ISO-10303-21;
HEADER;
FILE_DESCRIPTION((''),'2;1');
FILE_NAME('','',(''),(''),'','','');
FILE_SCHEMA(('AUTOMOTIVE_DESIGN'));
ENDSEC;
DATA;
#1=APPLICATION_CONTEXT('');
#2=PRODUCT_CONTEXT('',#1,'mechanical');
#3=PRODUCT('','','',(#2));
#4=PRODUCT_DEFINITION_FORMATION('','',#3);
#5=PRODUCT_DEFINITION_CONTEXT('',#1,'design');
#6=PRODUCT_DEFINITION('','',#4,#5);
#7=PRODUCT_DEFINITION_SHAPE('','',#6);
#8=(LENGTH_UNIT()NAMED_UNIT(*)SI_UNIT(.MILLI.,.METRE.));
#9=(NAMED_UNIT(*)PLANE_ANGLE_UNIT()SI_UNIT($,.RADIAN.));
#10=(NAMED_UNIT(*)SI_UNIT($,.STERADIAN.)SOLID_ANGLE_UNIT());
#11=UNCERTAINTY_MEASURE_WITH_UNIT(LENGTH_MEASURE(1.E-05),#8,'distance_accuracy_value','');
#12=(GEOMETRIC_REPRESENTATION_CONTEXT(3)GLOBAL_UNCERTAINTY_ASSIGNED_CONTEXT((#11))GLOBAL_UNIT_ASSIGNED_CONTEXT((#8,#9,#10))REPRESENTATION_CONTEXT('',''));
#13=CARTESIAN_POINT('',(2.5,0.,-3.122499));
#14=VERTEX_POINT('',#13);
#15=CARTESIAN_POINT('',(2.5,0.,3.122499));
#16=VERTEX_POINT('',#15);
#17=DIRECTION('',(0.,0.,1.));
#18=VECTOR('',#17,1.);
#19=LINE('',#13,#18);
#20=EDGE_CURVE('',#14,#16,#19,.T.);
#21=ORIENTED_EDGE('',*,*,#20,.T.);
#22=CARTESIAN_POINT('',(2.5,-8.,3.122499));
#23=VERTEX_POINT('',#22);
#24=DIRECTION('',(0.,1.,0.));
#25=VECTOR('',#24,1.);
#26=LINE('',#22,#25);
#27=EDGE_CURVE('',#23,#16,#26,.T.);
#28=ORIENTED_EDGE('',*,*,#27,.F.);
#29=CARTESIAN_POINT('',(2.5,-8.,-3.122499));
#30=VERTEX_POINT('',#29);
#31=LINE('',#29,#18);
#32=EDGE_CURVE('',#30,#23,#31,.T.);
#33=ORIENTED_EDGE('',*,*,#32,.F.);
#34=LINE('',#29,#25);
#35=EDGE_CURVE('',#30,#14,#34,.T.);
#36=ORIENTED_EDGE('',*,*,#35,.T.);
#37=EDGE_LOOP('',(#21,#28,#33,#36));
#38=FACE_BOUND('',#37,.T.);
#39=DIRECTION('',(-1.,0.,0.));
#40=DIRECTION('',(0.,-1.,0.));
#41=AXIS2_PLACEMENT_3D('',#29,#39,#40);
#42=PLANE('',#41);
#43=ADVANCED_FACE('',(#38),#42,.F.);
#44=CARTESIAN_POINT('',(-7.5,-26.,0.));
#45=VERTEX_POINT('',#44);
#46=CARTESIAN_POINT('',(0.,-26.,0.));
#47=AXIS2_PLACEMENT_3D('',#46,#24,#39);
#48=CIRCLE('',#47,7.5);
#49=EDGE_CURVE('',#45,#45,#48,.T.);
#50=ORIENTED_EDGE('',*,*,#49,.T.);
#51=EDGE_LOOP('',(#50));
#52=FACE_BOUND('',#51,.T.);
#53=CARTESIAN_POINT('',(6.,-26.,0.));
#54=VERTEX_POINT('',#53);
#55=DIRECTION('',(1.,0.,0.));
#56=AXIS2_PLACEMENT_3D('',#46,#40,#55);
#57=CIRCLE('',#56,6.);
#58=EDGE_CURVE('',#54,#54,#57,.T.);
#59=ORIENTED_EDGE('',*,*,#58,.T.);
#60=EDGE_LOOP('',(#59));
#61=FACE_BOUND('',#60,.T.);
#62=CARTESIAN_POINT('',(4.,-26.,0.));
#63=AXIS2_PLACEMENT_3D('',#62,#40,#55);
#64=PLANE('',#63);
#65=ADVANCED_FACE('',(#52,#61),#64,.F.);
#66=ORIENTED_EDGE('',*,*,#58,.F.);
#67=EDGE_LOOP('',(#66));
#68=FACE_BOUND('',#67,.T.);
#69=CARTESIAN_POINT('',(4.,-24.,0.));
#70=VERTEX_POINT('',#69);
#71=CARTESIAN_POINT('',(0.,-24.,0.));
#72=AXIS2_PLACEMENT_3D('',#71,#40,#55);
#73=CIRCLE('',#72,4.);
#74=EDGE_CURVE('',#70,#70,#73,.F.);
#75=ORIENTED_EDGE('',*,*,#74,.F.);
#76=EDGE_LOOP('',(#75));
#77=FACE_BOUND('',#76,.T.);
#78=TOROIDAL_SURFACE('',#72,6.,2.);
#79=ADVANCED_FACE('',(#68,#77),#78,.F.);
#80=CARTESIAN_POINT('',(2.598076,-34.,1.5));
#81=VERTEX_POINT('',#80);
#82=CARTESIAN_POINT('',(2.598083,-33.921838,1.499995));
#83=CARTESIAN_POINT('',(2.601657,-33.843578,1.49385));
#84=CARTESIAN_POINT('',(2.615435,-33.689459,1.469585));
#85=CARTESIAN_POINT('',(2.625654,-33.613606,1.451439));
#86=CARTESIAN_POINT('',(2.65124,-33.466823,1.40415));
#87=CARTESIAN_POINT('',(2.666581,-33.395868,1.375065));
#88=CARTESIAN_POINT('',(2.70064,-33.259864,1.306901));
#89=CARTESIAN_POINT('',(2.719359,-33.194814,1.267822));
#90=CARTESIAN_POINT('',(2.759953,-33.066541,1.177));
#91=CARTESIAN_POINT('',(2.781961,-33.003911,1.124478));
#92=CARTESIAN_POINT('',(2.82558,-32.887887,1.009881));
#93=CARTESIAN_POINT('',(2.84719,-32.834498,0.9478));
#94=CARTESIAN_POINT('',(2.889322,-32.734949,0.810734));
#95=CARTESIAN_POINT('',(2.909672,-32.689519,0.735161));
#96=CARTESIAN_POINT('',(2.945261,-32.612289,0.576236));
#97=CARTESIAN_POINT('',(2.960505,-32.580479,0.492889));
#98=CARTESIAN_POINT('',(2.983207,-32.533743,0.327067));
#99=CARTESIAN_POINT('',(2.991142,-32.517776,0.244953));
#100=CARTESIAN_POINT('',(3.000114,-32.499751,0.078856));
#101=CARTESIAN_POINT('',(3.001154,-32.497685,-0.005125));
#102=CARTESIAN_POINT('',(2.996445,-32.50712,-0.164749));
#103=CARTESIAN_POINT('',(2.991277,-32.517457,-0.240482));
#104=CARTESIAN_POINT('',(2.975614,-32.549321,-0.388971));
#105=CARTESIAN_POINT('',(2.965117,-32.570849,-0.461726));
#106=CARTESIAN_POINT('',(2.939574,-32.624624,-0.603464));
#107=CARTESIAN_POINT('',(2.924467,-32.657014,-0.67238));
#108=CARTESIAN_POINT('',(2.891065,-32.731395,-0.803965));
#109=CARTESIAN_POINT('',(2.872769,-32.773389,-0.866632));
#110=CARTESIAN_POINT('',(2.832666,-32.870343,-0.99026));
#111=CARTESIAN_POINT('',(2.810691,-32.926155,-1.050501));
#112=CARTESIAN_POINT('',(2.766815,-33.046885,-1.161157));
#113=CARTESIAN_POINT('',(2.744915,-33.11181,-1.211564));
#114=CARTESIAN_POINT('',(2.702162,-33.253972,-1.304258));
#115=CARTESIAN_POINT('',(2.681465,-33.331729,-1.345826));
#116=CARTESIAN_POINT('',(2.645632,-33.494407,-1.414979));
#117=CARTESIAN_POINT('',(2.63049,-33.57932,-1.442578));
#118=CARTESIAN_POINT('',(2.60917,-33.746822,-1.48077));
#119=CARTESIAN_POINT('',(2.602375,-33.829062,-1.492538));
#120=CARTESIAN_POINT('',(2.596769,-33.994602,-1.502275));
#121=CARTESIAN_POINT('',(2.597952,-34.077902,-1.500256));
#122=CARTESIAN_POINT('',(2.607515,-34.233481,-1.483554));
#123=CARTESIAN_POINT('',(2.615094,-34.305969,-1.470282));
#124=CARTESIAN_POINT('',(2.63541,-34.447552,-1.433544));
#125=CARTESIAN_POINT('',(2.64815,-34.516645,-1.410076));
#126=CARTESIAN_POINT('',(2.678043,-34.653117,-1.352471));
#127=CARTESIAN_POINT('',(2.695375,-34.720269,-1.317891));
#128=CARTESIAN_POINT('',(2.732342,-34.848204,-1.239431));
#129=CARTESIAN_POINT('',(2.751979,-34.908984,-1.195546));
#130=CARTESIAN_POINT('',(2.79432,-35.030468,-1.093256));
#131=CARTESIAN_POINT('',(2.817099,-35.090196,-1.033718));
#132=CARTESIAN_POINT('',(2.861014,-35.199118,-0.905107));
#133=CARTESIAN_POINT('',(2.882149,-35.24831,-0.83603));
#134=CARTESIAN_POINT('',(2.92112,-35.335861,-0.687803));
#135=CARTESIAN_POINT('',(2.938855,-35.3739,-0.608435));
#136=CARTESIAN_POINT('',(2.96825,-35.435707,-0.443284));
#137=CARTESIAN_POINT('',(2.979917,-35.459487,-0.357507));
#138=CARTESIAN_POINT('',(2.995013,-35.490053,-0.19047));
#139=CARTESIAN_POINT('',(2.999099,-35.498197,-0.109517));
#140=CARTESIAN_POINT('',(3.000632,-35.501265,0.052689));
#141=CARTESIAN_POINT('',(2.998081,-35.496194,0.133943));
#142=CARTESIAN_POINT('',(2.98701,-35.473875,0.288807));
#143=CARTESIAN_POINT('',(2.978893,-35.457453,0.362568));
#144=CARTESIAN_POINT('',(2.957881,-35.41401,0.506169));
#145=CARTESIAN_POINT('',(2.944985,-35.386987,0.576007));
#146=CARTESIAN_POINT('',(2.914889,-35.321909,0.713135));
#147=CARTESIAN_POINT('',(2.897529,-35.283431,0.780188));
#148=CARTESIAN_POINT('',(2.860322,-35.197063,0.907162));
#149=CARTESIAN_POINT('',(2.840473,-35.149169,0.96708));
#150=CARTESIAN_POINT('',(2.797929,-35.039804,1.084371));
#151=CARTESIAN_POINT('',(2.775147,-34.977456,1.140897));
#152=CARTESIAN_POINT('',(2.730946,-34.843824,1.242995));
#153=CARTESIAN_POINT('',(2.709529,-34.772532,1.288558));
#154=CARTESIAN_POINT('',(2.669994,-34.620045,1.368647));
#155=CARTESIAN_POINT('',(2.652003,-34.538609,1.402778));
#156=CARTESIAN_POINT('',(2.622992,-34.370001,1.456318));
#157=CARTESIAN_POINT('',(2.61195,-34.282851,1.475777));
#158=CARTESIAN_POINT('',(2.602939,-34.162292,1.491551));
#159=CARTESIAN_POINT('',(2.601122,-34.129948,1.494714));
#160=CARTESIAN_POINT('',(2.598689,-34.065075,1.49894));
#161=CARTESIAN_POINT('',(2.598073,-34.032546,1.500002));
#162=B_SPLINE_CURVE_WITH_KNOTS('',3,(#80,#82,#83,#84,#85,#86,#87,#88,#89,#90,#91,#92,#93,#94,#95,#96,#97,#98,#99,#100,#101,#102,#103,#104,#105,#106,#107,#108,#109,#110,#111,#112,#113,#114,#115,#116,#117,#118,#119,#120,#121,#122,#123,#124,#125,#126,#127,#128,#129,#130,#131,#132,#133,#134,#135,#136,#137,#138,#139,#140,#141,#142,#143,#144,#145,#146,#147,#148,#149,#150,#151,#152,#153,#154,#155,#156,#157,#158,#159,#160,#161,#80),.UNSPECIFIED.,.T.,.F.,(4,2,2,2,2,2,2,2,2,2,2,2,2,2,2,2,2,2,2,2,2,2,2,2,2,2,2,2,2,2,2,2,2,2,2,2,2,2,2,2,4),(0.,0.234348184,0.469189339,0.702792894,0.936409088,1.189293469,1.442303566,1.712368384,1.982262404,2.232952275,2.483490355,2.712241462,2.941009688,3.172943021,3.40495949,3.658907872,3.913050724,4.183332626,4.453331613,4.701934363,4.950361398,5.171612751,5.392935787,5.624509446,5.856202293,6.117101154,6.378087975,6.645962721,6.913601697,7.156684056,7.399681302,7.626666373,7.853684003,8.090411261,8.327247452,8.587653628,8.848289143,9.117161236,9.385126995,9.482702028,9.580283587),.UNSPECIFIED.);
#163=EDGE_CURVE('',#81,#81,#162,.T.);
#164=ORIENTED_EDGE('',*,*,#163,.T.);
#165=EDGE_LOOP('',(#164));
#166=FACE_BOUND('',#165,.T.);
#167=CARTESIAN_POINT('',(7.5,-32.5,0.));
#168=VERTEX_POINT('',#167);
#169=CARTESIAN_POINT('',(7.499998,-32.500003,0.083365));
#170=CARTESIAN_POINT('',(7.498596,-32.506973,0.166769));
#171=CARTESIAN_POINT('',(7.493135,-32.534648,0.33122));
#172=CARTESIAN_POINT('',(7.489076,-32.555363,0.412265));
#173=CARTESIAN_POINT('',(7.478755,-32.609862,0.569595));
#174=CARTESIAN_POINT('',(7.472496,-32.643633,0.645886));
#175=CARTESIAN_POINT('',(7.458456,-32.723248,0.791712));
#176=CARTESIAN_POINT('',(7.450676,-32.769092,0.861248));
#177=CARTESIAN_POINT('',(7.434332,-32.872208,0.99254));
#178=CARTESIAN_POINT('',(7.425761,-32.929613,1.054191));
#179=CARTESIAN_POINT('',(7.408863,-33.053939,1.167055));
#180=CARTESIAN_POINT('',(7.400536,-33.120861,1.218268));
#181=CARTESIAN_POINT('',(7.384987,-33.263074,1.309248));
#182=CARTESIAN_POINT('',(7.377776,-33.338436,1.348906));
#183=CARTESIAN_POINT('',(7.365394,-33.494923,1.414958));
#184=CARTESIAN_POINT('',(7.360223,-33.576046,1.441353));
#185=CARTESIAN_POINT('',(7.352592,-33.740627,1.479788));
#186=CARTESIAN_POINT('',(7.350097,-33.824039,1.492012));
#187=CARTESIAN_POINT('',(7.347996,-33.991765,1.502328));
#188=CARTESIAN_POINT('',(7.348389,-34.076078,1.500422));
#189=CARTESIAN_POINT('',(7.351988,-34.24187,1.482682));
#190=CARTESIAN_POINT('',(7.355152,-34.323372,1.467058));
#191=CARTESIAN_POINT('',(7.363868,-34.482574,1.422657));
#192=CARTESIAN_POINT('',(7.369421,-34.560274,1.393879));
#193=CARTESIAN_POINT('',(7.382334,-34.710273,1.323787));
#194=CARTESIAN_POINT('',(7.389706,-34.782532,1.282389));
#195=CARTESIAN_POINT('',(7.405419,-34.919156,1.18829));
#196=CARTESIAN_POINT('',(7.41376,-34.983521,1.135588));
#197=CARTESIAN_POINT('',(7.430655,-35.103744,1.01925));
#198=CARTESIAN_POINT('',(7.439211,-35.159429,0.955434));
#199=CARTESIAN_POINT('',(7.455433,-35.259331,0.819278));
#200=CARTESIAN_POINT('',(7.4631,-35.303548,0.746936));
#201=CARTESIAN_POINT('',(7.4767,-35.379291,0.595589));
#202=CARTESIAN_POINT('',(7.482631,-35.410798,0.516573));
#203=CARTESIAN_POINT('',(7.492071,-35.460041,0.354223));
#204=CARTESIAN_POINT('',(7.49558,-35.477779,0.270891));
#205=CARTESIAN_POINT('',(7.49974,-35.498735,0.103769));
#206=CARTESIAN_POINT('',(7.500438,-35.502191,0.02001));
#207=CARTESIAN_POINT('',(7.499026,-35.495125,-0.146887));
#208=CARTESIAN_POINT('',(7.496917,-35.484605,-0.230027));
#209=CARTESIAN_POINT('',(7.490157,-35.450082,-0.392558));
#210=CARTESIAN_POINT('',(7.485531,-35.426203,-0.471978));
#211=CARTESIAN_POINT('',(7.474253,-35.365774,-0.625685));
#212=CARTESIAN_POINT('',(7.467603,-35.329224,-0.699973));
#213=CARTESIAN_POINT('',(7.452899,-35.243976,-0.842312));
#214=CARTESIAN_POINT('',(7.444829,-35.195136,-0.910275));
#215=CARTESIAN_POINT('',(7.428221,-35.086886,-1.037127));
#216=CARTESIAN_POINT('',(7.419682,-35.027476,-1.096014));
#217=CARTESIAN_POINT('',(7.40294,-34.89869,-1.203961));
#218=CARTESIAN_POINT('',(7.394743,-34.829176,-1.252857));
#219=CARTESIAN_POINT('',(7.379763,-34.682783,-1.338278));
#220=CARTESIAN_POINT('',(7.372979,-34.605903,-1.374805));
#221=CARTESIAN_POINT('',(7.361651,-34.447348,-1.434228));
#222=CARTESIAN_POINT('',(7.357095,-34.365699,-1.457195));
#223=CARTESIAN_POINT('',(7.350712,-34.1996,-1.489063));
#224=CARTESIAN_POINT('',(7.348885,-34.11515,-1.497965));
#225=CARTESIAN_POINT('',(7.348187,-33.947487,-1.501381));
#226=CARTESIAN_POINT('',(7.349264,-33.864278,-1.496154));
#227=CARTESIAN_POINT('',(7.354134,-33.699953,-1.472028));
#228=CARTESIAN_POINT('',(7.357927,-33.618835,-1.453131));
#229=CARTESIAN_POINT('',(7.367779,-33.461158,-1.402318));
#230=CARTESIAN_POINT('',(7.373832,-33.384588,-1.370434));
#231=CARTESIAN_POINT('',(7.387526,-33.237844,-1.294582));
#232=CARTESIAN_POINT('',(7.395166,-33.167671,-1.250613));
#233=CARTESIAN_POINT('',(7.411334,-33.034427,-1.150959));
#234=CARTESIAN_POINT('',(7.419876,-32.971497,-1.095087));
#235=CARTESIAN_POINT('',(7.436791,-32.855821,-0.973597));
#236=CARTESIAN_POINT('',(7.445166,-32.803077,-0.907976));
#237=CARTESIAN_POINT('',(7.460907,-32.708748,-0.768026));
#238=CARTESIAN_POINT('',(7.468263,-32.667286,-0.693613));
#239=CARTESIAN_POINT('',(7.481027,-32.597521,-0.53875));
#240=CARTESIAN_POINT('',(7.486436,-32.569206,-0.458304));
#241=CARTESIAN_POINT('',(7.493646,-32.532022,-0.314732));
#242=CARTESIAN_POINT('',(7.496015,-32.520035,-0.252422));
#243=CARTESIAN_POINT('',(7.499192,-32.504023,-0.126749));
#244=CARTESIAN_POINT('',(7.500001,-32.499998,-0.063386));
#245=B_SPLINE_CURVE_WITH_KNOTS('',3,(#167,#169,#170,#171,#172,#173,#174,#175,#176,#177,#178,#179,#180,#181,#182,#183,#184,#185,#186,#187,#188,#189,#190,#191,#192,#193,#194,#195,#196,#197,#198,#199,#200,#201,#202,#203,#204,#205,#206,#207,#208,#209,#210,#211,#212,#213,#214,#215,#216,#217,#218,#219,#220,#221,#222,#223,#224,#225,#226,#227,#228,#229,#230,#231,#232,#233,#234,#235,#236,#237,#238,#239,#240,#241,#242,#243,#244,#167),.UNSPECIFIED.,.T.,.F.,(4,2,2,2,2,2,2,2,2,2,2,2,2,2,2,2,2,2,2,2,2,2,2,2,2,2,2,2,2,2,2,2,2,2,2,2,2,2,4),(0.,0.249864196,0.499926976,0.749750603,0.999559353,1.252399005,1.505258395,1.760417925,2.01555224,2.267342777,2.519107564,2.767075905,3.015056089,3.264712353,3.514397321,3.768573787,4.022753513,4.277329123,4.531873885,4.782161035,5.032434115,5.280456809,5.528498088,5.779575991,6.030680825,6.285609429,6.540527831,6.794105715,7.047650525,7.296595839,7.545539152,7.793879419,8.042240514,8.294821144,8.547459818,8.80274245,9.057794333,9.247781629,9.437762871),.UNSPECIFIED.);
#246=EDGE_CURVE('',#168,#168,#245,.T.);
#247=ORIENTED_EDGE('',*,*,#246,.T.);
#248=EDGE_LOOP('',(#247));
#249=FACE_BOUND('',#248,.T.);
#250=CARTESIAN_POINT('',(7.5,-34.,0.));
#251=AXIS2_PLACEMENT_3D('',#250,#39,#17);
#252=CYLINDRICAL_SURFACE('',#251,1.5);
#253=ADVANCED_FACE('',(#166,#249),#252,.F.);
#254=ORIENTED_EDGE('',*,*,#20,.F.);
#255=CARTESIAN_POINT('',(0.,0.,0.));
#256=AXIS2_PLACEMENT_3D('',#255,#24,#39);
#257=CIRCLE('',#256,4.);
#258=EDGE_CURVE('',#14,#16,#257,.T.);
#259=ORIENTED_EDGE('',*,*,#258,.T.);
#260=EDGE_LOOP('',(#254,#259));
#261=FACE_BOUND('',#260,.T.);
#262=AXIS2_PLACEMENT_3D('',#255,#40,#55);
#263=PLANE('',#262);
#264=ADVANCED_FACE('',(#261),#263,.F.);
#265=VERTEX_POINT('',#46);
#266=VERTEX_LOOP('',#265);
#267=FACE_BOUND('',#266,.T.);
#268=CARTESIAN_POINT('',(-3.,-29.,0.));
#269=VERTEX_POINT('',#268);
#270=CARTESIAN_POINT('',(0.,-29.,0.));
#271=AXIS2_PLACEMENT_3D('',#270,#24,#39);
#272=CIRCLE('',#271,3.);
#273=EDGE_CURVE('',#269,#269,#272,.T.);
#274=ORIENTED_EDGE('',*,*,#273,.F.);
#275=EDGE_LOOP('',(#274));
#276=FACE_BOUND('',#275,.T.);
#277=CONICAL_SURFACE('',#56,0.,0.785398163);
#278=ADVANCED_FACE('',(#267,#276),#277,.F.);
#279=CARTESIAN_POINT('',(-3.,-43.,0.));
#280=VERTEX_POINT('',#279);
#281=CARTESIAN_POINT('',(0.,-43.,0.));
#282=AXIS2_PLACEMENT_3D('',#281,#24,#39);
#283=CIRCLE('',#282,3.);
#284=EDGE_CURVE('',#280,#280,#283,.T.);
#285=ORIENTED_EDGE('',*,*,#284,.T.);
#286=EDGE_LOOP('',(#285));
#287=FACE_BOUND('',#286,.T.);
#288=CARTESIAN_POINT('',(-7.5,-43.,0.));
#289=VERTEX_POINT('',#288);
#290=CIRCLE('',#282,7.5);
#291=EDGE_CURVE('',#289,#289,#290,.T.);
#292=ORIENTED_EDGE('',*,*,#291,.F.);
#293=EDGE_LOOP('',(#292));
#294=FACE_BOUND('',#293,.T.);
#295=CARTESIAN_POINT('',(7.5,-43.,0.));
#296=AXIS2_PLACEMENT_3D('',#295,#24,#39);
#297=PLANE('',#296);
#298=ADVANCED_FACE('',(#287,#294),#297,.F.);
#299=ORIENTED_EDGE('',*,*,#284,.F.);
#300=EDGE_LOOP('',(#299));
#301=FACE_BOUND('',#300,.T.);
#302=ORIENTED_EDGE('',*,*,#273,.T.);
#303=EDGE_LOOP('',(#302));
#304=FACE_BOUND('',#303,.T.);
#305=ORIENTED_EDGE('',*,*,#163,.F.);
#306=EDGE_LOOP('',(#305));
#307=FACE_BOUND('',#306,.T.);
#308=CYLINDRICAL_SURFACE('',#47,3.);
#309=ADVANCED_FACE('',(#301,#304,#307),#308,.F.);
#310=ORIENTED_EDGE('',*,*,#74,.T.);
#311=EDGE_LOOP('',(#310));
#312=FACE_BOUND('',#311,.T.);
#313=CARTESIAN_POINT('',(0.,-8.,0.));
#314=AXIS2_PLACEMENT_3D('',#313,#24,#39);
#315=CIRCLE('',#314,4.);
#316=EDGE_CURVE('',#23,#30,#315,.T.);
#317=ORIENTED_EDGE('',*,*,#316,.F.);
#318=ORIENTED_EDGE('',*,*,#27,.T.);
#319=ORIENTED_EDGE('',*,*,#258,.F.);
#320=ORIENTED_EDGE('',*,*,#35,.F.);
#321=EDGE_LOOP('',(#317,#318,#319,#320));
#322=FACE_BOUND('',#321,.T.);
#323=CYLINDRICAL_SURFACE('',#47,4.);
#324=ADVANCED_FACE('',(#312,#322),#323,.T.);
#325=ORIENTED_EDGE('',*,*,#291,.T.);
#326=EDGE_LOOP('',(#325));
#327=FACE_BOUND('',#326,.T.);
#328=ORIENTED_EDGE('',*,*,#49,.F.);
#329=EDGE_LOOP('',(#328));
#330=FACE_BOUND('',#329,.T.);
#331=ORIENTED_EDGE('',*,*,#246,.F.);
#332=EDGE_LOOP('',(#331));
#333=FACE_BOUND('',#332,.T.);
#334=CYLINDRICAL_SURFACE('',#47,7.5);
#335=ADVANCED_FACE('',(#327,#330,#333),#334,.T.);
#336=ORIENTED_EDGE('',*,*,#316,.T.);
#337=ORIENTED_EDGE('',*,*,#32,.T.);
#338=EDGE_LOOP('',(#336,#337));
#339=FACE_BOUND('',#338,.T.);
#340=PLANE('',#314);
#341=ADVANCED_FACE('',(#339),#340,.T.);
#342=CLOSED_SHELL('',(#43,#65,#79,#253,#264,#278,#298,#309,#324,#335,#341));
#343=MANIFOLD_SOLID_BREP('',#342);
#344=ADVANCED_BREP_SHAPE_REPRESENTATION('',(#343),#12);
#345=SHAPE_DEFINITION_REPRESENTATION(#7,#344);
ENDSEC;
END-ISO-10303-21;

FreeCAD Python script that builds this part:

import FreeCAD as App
import Part
import Sketcher

V = App.Vector
Q = App.Units.Quantity


def edges_at(feature, points):
    """Names of the edges that pass closest to the given points."""
    edges = feature.Shape.Edges
    near = lambda p: min(range(len(edges)), key=lambda i: edges[i].distToShape(Part.Vertex(*p))[0])
    return sorted({f"Edge{near(p) + 1}" for p in points})


def add_polygon(sketch, points):
    """Adds a closed chain of lines whose ends are joined by coincident constraints."""
    first, n = sketch.GeometryCount, len(points)
    for a, b in zip(points, points[1:] + points[:1]):
        sketch.addGeometry(Part.LineSegment(App.Vector(*a, 0), App.Vector(*b, 0)), False)
    for i in range(n):
        sketch.addConstraint(Sketcher.Constraint("Coincident", first + i, 2, first + (i + 1) % n, 1))

doc = App.newDocument("Part")
body = doc.addObject("PartDesign::Body", "Body")

# Sketch on XY plane
sketch1 = doc.addObject("Sketcher::SketchObject", "Sketch")
body.addObject(sketch1)
sketch1.AttachmentSupport = (doc.XY_Plane, [""])
sketch1.MapMode = "FlatFace"
add_polygon(sketch1, [(4, 0), (0, 0), (0, -26), (3, -29), (3, -43), (7.5, -43), (7.5, -26), (4, -26)])  # lines 0-7
sketch1.addConstraint([
    Sketcher.Constraint("Horizontal", 0),
    Sketcher.Constraint("Vertical", 1),
    Sketcher.Constraint("Vertical", 3),
    Sketcher.Constraint("Horizontal", 4),
    Sketcher.Constraint("Vertical", 5),
    Sketcher.Constraint("Horizontal", 6),
    Sketcher.Constraint("Vertical", 7),
    Sketcher.Constraint("Coincident", 0, 2, -1, 1),
    Sketcher.Constraint("Horizontal", 1, 2, 5, 2),
    Sketcher.Constraint("DistanceX", 0, 2, 0, 1, 4.0),
    Sketcher.Constraint("DistanceY", 1, 2, 1, 1, 26.0),
    Sketcher.Constraint("DistanceY", 3, 2, 3, 1, 14.0),
    Sketcher.Constraint("DistanceY", 5, 1, 5, 2, 17.0),
    Sketcher.Constraint("Angle", 2, Q("-45 deg")),
    Sketcher.Constraint("DistanceX", 4, 1, 4, 2, 4.5),
])
revolution = doc.addObject("PartDesign::Revolution", "Revolution")
body.addObject(revolution)
revolution.Profile = sketch1
revolution.ReferenceAxis = (sketch1, ["V_Axis"])
revolution.Angle = 360
doc.recompute()

fillet = doc.addObject("PartDesign::Fillet", "Fillet")
body.addObject(fillet)
fillet.Base = (revolution, edges_at(revolution, [(4, -26, 0)]))
fillet.Radius = 2

# Sketch on XZ plane
sketch2 = doc.addObject("Sketcher::SketchObject", "Sketch001")
body.addObject(sketch2)
sketch2.AttachmentSupport = (doc.XZ_Plane, [""])
sketch2.MapMode = "FlatFace"
add_polygon(sketch2, [(2.5, -3.1), (2.5, 3.1), (4, 3.1), (4, -3.1)])  # lines 0-3
sketch2.addConstraint([
    Sketcher.Constraint("Vertical", 0),
    Sketcher.Constraint("Horizontal", 1),
    Sketcher.Constraint("Vertical", 2),
    Sketcher.Constraint("Horizontal", 3),
    Sketcher.Constraint("DistanceX", 1, 1, 1, 2, 1.5),
    Sketcher.Constraint("DistanceX", -1, 1, 1, 2, 4.0),
    Sketcher.Constraint("DistanceY", -1, 1, 0, 2, 3.122499),
    Sketcher.Constraint("DistanceY", 2, 2, -1, 1, 3.122499),
])
pocket1 = doc.addObject("PartDesign::Pocket", "Pocket")
body.addObject(pocket1)
pocket1.Profile = sketch2
pocket1.Length = 8
pocket1.Reversed = True

# Sketch on YZ plane
sketch3 = doc.addObject("Sketcher::SketchObject", "Sketch002")
body.addObject(sketch3)
sketch3.AttachmentSupport = (doc.YZ_Plane, [""])
sketch3.MapMode = "FlatFace"
sketch3.addGeometry(Part.Circle(V(-34, 0, 0), V(0, 0, 1), 1.5), False)
sketch3.addConstraint([
    Sketcher.Constraint("PointOnObject", 0, 3, -1),
    Sketcher.Constraint("Diameter", 0, 3.0),
    Sketcher.Constraint("DistanceX", 0, 3, -1, 1, 34.0),
])
pocket2 = doc.addObject("PartDesign::Pocket", "Pocket001")
body.addObject(pocket2)
pocket2.Profile = sketch3
pocket2.Type = "ThroughAll"
pocket2.Reversed = True

doc.recompute()
